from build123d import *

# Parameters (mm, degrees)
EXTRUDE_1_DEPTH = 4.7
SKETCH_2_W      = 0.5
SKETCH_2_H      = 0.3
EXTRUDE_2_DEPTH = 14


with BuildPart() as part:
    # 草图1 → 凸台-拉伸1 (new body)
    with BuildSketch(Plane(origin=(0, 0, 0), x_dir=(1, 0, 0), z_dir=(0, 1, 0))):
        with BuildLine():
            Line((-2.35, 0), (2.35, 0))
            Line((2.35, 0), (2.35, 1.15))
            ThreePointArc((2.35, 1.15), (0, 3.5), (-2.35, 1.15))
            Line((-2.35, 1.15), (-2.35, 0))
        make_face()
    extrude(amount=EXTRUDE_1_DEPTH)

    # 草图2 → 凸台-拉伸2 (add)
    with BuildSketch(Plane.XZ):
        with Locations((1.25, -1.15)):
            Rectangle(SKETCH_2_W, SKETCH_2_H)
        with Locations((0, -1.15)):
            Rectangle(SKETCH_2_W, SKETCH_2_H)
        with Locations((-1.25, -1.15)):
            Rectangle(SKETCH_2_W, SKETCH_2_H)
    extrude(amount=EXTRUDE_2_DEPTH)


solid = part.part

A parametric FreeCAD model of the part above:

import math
import FreeCAD as App
import Part
import Sketcher
from FreeCAD import Vector

doc = App.newDocument("Part")
body = doc.addObject("PartDesign::Body", "Body")

sketch1 = doc.addObject("Sketcher::SketchObject", "Sketch")
body.addObject(sketch1)
sketch1.AttachmentSupport = (doc.XZ_Plane, [""])
sketch1.MapMode = "FlatFace"
sketch1.addGeometry([
    Part.LineSegment(Vector(-2.4, 0, 0), Vector(2.4, 0, 0)),
    Part.LineSegment(Vector(2.4, 0, 0), Vector(2.4, -1.1, 0)),
    Part.ArcOfCircle(Part.Circle(Vector(0, -1.1, 0), Vector(0, 0, 1), 2.4), math.radians(180), math.radians(360)),
    Part.LineSegment(Vector(-2.4, -1.1, 0), Vector(-2.4, 0, 0)),
], False)
sketch1.addConstraint([
    Sketcher.Constraint("Coincident", 0, 2, 1, 1),
    Sketcher.Constraint("Tangent", 1, 2, 2, 2),
    Sketcher.Constraint("Tangent", 2, 1, 3, 1),
    Sketcher.Constraint("Coincident", 3, 2, 0, 1),
    Sketcher.Constraint("Horizontal", 0),
    Sketcher.Constraint("Vertical", 1),
    Sketcher.Constraint("Vertical", 3),
    Sketcher.Constraint("Symmetric", 0, 2, 3, 2, -1, 1),
    Sketcher.Constraint("Radius", 2, 2.35),
    Sketcher.Constraint("DistanceY", 1, 2, 1, 1, 1.15),
])
pad1 = doc.addObject("PartDesign::Pad", "Pad")
body.addObject(pad1)
pad1.Profile = sketch1
pad1.Length = 4.7
pad1.Reversed = True

sketch2 = doc.addObject("Sketcher::SketchObject", "Sketch001")
body.addObject(sketch2)
sketch2.AttachmentSupport = (doc.XZ_Plane, [""])
sketch2.MapMode = "FlatFace"
sketch2.addGeometry([
    Part.LineSegment(Vector(1, -1, 0), Vector(1, -1.3, 0)),
    Part.LineSegment(Vector(1, -1.3, 0), Vector(1.5, -1.3, 0)),
    Part.LineSegment(Vector(1.5, -1.3, 0), Vector(1.5, -1, 0)),
    Part.LineSegment(Vector(1.5, -1, 0), Vector(1, -1, 0)),
    Part.LineSegment(Vector(-0.25, -1, 0), Vector(-0.25, -1.3, 0)),
    Part.LineSegment(Vector(-0.25, -1.3, 0), Vector(0.25, -1.3, 0)),
    Part.LineSegment(Vector(0.25, -1.3, 0), Vector(0.25, -1, 0)),
    Part.LineSegment(Vector(0.25, -1, 0), Vector(-0.25, -1, 0)),
    Part.LineSegment(Vector(-1.5, -1, 0), Vector(-1.5, -1.3, 0)),
    Part.LineSegment(Vector(-1.5, -1.3, 0), Vector(-1, -1.3, 0)),
    Part.LineSegment(Vector(-1, -1.3, 0), Vector(-1, -1, 0)),
    Part.LineSegment(Vector(-1, -1, 0), Vector(-1.5, -1, 0)),
], False)
sketch2.addConstraint([
    Sketcher.Constraint("Coincident", 0, 2, 1, 1),
    Sketcher.Constraint("Coincident", 1, 2, 2, 1),
    Sketcher.Constraint("Coincident", 2, 2, 3, 1),
    Sketcher.Constraint("Coincident", 3, 2, 0, 1),
    Sketcher.Constraint("Coincident", 4, 2, 5, 1),
    Sketcher.Constraint("Coincident", 5, 2, 6, 1),
    Sketcher.Constraint("Coincident", 6, 2, 7, 1),
    Sketcher.Constraint("Coincident", 7, 2, 4, 1),
    Sketcher.Constraint("Coincident", 8, 2, 9, 1),
    Sketcher.Constraint("Coincident", 9, 2, 10, 1),
    Sketcher.Constraint("Coincident", 10, 2, 11, 1),
    Sketcher.Constraint("Coincident", 11, 2, 8, 1),
    Sketcher.Constraint("Vertical", 0),
    Sketcher.Constraint("Horizontal", 1),
    Sketcher.Constraint("Vertical", 2),
    Sketcher.Constraint("Horizontal", 3),
    Sketcher.Constraint("Vertical", 4),
    Sketcher.Constraint("Horizontal", 5),
    Sketcher.Constraint("Vertical", 6),
    Sketcher.Constraint("Horizontal", 7),
    Sketcher.Constraint("Vertical", 8),
    Sketcher.Constraint("Horizontal", 9),
    Sketcher.Constraint("Vertical", 10),
    Sketcher.Constraint("Horizontal", 11),
    Sketcher.Constraint("Symmetric", 1, 2, 8, 2, -2),
    Sketcher.Constraint("Symmetric", 3, 2, 10, 2, -2),
    Sketcher.Constraint("Horizontal", 1, 2, 4, 2),
    Sketcher.Constraint("Horizontal", 3, 2, 6, 2),
    Sketcher.Constraint("Equal", 3, 5),
    Sketcher.Constraint("DistanceX", 1, 1, 1, 2, 0.5),
    Sketcher.Constraint("DistanceY", 0, 2, 0, 1, 0.3),
    Sketcher.Constraint("DistanceX", -1, 1, 0, 2, 1.0),
    Sketcher.Constraint("DistanceY", 2, 2, -1, 1, 1.0),
    Sketcher.Constraint("DistanceX", 4, 2, -1, 1, 0.25),
])
pad2 = doc.addObject("PartDesign::Pad", "Pad001")
body.addObject(pad2)
pad2.Profile = sketch2
pad2.Length = 14

doc.recompute()
